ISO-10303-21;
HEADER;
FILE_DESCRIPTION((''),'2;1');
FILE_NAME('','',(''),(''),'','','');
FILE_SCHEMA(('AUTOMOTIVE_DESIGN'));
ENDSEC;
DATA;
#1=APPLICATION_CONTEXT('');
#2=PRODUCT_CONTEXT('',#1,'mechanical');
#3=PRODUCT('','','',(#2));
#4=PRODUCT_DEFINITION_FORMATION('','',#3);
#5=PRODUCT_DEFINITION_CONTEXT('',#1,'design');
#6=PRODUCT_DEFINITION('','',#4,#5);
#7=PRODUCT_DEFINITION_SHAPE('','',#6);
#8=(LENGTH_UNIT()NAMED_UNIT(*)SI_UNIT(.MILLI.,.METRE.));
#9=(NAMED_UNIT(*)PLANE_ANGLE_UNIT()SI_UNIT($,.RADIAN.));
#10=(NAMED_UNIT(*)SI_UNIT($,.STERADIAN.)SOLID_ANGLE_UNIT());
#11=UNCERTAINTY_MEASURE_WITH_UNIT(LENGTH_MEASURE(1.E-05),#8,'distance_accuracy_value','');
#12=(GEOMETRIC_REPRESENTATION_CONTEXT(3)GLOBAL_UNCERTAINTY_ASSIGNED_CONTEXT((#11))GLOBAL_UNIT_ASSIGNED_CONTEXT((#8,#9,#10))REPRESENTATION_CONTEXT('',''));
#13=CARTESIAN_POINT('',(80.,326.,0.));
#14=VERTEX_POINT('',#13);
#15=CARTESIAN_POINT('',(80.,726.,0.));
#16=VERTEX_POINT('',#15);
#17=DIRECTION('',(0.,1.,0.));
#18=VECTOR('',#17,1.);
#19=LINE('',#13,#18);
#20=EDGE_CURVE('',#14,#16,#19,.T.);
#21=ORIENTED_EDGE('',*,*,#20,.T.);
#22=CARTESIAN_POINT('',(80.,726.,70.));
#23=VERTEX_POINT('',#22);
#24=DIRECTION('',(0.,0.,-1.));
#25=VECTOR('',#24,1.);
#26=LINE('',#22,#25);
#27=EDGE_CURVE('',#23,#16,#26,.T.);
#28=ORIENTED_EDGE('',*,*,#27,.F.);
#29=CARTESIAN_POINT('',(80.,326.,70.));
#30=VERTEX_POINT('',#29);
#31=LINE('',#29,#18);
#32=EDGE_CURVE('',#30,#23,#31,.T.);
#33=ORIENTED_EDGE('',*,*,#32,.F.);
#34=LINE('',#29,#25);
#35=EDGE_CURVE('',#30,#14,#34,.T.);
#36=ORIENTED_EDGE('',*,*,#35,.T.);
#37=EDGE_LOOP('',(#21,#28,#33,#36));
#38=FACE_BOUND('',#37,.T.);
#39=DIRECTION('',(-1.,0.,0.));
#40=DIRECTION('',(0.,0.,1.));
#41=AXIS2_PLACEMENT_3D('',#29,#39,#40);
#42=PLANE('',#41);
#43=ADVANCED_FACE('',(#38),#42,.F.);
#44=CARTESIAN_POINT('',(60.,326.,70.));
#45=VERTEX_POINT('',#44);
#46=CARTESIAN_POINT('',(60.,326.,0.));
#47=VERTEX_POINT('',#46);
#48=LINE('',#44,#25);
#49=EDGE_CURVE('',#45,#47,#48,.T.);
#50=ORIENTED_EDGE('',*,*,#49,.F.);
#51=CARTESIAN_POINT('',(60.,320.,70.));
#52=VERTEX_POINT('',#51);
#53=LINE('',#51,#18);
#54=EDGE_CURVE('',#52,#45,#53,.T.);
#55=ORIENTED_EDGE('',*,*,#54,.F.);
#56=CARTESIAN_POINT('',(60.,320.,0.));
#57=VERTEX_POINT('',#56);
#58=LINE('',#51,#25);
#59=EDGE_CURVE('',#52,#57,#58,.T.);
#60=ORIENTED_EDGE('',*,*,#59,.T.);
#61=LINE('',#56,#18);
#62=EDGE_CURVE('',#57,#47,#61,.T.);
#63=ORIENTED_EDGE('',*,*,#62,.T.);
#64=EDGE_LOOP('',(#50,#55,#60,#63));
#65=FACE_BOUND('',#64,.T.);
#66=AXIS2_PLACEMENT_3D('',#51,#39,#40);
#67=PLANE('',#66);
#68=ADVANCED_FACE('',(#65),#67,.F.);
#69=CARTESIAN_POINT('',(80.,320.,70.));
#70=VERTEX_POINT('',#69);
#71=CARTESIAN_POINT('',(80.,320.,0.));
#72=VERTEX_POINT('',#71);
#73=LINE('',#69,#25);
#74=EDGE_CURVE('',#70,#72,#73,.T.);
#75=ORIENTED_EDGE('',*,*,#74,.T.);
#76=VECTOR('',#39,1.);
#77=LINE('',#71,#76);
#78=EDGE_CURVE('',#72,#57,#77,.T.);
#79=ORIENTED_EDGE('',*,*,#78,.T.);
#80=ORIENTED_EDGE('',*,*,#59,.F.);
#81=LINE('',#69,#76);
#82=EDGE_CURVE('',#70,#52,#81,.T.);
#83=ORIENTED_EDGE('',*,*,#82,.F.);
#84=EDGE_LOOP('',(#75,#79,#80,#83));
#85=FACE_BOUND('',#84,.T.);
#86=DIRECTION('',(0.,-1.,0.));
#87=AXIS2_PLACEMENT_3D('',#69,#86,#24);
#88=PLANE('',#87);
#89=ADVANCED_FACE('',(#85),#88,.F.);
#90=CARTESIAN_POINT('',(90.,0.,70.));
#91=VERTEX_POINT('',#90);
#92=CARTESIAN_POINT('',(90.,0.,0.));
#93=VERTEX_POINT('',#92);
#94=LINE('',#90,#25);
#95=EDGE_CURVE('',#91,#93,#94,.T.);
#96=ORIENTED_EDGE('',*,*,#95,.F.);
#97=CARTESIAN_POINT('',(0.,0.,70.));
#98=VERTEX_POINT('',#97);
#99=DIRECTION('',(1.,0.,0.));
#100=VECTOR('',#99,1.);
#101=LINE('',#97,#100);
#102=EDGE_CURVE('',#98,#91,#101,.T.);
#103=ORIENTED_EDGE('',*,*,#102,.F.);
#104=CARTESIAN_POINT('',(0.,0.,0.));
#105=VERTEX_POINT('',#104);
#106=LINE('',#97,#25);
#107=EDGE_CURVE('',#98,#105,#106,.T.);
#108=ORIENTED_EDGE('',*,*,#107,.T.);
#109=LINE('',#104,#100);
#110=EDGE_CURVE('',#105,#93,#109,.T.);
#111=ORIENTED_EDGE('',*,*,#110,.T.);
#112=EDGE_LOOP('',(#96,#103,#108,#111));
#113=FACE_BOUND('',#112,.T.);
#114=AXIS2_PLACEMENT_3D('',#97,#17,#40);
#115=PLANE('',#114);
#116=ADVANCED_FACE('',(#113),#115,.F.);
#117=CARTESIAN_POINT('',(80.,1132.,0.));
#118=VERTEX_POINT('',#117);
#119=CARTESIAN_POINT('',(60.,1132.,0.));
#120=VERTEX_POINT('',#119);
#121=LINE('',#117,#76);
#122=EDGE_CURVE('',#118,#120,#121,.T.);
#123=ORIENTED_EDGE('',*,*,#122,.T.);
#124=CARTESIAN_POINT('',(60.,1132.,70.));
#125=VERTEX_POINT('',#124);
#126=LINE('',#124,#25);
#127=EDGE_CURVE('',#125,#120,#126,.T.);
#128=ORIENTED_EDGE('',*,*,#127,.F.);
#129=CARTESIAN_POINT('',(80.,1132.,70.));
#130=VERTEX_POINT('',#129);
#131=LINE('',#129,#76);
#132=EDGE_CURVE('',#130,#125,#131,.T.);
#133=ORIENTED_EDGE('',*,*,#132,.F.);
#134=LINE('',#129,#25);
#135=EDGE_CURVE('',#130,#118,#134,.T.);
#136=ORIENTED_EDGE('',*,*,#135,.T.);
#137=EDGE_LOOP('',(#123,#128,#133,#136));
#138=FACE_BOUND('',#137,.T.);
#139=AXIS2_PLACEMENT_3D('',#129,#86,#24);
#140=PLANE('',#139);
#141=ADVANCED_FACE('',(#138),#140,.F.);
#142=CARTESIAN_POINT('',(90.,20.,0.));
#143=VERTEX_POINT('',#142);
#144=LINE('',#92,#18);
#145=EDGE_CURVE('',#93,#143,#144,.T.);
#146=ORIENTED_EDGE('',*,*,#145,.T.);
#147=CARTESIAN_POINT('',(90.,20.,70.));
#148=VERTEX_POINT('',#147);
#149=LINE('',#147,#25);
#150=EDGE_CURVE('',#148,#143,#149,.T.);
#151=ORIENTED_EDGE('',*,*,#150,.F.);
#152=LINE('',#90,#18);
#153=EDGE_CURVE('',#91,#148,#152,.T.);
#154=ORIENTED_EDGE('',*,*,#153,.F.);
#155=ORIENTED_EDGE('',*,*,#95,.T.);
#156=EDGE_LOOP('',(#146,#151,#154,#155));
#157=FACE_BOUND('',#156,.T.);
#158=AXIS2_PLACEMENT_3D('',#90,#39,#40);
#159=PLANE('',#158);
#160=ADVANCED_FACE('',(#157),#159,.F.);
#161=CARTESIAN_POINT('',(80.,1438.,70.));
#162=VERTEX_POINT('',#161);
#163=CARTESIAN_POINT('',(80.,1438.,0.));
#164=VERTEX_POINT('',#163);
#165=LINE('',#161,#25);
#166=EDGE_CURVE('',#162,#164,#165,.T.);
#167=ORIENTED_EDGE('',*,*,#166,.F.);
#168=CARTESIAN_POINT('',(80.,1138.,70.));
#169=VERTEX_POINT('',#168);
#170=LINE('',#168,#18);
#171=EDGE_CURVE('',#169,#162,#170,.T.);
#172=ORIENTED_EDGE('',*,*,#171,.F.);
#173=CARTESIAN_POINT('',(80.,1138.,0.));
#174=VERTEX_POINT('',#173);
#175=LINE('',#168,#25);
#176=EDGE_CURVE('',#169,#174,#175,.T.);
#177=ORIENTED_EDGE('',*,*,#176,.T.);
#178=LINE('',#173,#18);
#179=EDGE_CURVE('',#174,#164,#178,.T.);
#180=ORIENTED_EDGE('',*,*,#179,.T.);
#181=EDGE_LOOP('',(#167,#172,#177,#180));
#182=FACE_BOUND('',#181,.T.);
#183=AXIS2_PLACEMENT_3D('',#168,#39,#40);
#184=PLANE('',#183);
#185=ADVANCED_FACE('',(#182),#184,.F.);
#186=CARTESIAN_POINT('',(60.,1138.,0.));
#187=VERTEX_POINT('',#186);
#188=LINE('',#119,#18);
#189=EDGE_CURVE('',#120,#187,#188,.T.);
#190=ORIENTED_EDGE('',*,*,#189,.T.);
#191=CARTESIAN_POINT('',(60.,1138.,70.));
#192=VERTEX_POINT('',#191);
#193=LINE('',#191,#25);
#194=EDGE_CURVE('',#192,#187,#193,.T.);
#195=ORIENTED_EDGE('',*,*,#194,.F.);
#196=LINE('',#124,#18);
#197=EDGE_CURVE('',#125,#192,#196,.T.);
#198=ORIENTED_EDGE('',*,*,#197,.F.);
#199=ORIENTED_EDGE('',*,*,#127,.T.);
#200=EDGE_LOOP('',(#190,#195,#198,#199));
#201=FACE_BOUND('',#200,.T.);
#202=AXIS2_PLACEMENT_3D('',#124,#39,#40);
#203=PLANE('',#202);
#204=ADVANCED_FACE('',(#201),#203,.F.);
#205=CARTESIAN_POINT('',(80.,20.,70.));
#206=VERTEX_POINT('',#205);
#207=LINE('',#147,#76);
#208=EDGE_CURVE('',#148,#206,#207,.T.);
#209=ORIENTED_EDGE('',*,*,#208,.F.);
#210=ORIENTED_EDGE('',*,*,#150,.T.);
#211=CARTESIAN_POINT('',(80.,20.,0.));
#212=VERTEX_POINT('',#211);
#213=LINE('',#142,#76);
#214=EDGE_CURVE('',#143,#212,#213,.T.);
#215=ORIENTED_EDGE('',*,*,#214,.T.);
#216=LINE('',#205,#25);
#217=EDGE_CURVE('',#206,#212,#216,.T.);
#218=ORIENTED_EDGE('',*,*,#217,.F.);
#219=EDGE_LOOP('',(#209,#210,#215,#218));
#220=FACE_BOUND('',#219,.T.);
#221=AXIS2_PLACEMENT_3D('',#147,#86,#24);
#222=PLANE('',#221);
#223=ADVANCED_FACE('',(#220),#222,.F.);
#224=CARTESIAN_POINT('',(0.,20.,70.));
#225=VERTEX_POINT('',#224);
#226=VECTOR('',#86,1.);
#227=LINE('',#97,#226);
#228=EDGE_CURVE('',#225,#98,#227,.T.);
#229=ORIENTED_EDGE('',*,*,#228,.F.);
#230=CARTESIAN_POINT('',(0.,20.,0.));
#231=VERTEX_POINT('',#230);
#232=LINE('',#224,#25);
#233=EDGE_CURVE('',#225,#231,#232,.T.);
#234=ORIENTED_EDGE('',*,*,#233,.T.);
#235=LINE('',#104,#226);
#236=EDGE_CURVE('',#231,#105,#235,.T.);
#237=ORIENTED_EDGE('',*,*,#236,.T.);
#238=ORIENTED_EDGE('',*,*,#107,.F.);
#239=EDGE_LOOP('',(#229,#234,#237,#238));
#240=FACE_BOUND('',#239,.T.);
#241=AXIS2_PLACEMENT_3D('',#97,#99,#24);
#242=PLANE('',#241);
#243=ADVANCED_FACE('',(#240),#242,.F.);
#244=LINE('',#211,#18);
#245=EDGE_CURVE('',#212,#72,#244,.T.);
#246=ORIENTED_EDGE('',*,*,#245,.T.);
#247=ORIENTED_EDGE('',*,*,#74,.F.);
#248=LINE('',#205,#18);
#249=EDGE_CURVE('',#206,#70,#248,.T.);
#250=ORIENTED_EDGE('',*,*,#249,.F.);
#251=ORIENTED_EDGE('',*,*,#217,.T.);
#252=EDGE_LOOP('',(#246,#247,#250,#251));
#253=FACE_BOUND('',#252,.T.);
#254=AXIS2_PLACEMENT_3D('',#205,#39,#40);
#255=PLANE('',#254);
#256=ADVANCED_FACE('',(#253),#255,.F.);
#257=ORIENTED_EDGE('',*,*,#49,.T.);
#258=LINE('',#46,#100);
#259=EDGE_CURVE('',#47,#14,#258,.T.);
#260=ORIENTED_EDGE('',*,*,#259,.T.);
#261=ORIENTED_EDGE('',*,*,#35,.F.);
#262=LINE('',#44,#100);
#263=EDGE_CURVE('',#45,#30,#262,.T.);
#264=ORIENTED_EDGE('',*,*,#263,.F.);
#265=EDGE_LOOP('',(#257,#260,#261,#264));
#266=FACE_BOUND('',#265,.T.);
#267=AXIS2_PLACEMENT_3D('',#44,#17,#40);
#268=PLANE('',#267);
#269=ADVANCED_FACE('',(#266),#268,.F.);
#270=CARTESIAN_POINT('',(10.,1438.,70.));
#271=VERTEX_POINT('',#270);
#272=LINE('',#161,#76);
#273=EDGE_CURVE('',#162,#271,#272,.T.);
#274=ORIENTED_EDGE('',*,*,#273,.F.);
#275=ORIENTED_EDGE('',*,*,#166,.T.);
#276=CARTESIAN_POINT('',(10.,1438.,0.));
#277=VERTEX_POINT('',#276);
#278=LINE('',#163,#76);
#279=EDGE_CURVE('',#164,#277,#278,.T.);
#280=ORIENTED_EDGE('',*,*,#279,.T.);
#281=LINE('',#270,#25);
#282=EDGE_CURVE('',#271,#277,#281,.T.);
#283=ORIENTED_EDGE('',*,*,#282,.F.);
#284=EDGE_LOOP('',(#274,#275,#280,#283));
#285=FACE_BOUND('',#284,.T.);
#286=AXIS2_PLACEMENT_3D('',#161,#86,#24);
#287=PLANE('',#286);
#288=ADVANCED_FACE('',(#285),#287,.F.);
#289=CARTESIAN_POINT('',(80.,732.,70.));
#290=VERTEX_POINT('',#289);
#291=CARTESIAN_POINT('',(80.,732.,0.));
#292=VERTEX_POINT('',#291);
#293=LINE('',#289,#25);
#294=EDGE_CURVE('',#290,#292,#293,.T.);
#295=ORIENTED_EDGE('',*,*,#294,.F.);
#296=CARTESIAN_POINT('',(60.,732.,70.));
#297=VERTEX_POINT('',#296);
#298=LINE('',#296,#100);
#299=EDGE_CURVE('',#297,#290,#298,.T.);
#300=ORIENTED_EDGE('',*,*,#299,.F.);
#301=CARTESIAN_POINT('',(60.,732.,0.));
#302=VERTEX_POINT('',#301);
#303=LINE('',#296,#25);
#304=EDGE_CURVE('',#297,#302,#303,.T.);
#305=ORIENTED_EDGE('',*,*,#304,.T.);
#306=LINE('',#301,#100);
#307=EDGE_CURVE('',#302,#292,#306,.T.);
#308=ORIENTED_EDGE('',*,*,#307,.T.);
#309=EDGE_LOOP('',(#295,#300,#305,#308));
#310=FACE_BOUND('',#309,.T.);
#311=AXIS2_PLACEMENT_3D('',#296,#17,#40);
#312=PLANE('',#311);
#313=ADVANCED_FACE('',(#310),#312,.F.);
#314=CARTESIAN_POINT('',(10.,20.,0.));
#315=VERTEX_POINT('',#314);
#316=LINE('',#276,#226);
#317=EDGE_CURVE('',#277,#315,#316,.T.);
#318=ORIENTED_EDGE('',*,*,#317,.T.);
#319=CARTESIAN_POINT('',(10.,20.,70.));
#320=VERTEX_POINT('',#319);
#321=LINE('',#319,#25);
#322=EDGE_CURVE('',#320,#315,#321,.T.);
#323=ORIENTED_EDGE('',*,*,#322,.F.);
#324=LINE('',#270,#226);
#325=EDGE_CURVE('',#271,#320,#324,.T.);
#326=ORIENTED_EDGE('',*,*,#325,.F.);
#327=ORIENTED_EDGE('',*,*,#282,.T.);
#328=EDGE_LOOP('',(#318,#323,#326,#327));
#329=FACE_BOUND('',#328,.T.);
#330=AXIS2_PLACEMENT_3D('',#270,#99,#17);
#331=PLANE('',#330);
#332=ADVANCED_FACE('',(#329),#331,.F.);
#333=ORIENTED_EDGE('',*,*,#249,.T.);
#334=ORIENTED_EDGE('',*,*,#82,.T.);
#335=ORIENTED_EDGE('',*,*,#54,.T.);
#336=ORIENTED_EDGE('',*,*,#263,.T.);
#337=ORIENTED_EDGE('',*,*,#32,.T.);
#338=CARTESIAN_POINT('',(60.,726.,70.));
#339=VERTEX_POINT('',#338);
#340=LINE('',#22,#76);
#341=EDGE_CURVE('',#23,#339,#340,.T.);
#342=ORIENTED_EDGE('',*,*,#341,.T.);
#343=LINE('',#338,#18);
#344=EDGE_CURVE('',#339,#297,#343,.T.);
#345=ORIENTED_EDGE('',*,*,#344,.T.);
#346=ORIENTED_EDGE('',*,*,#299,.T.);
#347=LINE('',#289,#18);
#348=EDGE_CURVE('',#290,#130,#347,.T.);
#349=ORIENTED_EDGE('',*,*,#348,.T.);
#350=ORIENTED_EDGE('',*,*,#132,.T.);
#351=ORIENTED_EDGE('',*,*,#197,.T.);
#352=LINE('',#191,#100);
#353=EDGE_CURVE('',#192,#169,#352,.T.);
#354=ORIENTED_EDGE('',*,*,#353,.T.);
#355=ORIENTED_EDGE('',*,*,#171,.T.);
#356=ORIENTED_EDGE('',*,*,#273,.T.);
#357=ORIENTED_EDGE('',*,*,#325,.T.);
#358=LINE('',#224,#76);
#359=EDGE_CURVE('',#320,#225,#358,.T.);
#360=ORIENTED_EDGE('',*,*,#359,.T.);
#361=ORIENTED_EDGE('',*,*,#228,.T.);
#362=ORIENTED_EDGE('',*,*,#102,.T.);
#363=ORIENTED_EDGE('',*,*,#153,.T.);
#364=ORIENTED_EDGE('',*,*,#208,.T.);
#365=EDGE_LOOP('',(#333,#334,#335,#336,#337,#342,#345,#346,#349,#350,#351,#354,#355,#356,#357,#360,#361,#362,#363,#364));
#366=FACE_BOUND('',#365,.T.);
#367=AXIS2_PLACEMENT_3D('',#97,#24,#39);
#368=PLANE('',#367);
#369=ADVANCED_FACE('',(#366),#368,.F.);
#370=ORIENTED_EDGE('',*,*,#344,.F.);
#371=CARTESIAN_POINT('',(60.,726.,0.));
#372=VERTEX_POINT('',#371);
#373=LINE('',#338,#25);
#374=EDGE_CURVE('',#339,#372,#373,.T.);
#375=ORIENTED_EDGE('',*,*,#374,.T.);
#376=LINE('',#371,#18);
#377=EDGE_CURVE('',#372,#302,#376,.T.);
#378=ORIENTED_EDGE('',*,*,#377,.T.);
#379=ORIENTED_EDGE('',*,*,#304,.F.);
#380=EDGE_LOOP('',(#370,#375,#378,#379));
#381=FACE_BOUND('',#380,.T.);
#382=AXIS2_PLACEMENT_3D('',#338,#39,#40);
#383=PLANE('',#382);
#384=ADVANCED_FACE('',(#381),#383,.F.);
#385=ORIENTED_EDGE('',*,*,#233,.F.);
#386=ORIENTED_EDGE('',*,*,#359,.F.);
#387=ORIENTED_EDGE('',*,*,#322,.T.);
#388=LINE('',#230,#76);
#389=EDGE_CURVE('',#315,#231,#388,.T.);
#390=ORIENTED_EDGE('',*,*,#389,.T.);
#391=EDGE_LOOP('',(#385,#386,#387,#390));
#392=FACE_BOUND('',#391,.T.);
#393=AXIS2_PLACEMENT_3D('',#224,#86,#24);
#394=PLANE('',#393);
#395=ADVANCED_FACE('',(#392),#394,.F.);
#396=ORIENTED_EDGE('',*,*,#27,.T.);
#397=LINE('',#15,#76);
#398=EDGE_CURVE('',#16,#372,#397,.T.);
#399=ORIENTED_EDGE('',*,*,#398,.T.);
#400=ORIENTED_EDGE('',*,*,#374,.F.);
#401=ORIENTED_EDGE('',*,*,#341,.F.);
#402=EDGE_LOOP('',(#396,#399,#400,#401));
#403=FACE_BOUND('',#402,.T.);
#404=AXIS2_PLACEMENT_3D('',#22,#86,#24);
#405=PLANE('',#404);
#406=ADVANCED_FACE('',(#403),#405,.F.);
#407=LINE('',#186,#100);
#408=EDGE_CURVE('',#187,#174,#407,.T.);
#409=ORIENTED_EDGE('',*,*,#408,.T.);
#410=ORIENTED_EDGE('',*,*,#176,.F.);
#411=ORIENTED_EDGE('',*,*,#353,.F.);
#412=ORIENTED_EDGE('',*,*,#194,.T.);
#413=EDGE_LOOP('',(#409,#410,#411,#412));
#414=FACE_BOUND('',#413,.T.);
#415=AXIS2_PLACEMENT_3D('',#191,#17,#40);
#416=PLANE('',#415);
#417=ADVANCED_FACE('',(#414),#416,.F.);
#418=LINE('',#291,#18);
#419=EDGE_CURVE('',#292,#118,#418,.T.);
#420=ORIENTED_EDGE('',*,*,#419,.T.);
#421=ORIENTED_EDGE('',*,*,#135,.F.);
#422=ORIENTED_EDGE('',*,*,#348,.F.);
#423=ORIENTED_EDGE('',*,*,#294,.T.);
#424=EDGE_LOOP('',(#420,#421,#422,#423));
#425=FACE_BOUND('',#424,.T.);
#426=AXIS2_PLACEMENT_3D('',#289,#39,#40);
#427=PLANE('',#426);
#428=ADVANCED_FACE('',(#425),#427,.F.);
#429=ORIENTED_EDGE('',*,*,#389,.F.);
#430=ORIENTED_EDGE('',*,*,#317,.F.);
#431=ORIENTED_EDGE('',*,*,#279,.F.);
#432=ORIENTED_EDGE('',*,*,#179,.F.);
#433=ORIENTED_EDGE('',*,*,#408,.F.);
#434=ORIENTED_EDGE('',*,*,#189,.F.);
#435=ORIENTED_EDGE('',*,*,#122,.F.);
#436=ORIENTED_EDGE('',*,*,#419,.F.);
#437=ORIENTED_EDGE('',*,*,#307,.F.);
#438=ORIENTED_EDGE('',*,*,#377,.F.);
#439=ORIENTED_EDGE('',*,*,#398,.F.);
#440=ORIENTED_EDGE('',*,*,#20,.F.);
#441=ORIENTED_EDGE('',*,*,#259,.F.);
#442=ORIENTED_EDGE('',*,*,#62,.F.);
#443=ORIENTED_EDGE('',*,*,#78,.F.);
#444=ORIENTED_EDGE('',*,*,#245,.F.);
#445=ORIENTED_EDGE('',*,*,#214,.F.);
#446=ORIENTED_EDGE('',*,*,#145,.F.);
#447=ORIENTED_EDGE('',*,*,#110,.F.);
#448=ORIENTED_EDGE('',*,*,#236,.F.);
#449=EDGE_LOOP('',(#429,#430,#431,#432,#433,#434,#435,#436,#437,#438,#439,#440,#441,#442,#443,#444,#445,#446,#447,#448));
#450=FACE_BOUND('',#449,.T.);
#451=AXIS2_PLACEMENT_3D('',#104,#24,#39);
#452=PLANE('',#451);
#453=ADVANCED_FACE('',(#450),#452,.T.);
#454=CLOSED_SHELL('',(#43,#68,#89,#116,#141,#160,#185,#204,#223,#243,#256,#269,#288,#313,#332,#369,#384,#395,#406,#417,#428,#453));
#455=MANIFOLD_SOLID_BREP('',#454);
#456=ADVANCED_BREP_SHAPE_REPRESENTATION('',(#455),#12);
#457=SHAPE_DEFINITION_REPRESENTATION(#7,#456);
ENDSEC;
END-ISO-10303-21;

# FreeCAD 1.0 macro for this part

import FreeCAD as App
import Part
import Sketcher
Q = App.Units.Quantity


def add_polygon(sketch, points):
    """Adds a closed chain of lines whose ends are joined by coincident constraints."""
    first, n = sketch.GeometryCount, len(points)
    for a, b in zip(points, points[1:] + points[:1]):
        sketch.addGeometry(Part.LineSegment(App.Vector(*a, 0), App.Vector(*b, 0)), False)
    for i in range(n):
        sketch.addConstraint(Sketcher.Constraint("Coincident", first + i, 2, first + (i + 1) % n, 1))

doc = App.newDocument("Part")
body = doc.addObject("PartDesign::Body", "Body")

sketch1 = body.newObject("Sketcher::SketchObject", "Sketch")
sketch1.AttachmentSupport = (doc.getObject("XY_Plane"), [""])
sketch1.MapMode = "FlatFace"
add_polygon(sketch1, [(0, 0), (90, 0), (90, 20), (80, 20), (80, 320), (60, 320), (60, 326), (80, 326), (80, 726), (60, 726), (60, 732), (80, 732), (80, 1132), (60, 1132), (60, 1138), (80, 1138), (80, 1438), (10, 1438), (10, 20), (0, 20)])
sketch1.addConstraint(Sketcher.Constraint("Horizontal", 0))
sketch1.addConstraint(Sketcher.Constraint("Vertical", 1))
sketch1.addConstraint(Sketcher.Constraint("Horizontal", 2))
sketch1.addConstraint(Sketcher.Constraint("Vertical", 3))
sketch1.addConstraint(Sketcher.Constraint("Horizontal", 4))
sketch1.addConstraint(Sketcher.Constraint("Vertical", 5))
sketch1.addConstraint(Sketcher.Constraint("Horizontal", 6))
sketch1.addConstraint(Sketcher.Constraint("Vertical", 7))
sketch1.addConstraint(Sketcher.Constraint("Horizontal", 8))
sketch1.addConstraint(Sketcher.Constraint("Vertical", 9))
sketch1.addConstraint(Sketcher.Constraint("Horizontal", 10))
sketch1.addConstraint(Sketcher.Constraint("Vertical", 11))
sketch1.addConstraint(Sketcher.Constraint("Horizontal", 12))
sketch1.addConstraint(Sketcher.Constraint("Vertical", 13))
sketch1.addConstraint(Sketcher.Constraint("Horizontal", 14))
sketch1.addConstraint(Sketcher.Constraint("Vertical", 15))
sketch1.addConstraint(Sketcher.Constraint("Horizontal", 16))
sketch1.addConstraint(Sketcher.Constraint("Vertical", 17))
sketch1.addConstraint(Sketcher.Constraint("Horizontal", 18))
sketch1.addConstraint(Sketcher.Constraint("Vertical", 19))
sketch1.addConstraint(Sketcher.Constraint("Coincident", 19, 2, -1, 1))
sketch1.addConstraint(Sketcher.Constraint("Horizontal", 2, 2, 17, 2))
sketch1.addConstraint(Sketcher.Constraint("Vertical", 3, 2, 6, 2))
sketch1.addConstraint(Sketcher.Constraint("Vertical", 5, 2, 8, 2))
sketch1.addConstraint(Sketcher.Constraint("Vertical", 7, 2, 10, 2))
sketch1.addConstraint(Sketcher.Constraint("Vertical", 9, 2, 12, 2))
sketch1.addConstraint(Sketcher.Constraint("Vertical", 11, 2, 14, 2))
sketch1.addConstraint(Sketcher.Constraint("Equal", 2, 18))
sketch1.addConstraint(Sketcher.Constraint("Equal", 14, 1))
sketch1.addConstraint(Sketcher.Constraint("Equal", 5, 9))
sketch1.addConstraint(Sketcher.Constraint("Equal", 7, 11))
sketch1.addConstraint(Sketcher.Constraint("Equal", 9, 13))
sketch1.addConstraint(Sketcher.Constraint("Equal", 3, 15))
sketch1.addConstraint(Sketcher.Constraint("DistanceX", 0, 1, 0, 2, Q("90 mm")))
sketch1.addConstraint(Sketcher.Constraint("DistanceX", 2, 2, 2, 1, Q("10 mm")))
sketch1.addConstraint(Sketcher.Constraint("DistanceX", 4, 2, 4, 1, Q("20 mm")))
sketch1.addConstraint(Sketcher.Constraint("DistanceY", 3, 1, 3, 2, Q("300 mm")))
sketch1.addConstraint(Sketcher.Constraint("DistanceY", 5, 1, 5, 2, Q("6 mm")))
sketch1.addConstraint(Sketcher.Constraint("DistanceY", 7, 1, 7, 2, Q("400 mm")))
pad1 = body.newObject("PartDesign::Pad", "Pad")
pad1.Profile = sketch1
pad1.Length = 70

doc.recompute()
